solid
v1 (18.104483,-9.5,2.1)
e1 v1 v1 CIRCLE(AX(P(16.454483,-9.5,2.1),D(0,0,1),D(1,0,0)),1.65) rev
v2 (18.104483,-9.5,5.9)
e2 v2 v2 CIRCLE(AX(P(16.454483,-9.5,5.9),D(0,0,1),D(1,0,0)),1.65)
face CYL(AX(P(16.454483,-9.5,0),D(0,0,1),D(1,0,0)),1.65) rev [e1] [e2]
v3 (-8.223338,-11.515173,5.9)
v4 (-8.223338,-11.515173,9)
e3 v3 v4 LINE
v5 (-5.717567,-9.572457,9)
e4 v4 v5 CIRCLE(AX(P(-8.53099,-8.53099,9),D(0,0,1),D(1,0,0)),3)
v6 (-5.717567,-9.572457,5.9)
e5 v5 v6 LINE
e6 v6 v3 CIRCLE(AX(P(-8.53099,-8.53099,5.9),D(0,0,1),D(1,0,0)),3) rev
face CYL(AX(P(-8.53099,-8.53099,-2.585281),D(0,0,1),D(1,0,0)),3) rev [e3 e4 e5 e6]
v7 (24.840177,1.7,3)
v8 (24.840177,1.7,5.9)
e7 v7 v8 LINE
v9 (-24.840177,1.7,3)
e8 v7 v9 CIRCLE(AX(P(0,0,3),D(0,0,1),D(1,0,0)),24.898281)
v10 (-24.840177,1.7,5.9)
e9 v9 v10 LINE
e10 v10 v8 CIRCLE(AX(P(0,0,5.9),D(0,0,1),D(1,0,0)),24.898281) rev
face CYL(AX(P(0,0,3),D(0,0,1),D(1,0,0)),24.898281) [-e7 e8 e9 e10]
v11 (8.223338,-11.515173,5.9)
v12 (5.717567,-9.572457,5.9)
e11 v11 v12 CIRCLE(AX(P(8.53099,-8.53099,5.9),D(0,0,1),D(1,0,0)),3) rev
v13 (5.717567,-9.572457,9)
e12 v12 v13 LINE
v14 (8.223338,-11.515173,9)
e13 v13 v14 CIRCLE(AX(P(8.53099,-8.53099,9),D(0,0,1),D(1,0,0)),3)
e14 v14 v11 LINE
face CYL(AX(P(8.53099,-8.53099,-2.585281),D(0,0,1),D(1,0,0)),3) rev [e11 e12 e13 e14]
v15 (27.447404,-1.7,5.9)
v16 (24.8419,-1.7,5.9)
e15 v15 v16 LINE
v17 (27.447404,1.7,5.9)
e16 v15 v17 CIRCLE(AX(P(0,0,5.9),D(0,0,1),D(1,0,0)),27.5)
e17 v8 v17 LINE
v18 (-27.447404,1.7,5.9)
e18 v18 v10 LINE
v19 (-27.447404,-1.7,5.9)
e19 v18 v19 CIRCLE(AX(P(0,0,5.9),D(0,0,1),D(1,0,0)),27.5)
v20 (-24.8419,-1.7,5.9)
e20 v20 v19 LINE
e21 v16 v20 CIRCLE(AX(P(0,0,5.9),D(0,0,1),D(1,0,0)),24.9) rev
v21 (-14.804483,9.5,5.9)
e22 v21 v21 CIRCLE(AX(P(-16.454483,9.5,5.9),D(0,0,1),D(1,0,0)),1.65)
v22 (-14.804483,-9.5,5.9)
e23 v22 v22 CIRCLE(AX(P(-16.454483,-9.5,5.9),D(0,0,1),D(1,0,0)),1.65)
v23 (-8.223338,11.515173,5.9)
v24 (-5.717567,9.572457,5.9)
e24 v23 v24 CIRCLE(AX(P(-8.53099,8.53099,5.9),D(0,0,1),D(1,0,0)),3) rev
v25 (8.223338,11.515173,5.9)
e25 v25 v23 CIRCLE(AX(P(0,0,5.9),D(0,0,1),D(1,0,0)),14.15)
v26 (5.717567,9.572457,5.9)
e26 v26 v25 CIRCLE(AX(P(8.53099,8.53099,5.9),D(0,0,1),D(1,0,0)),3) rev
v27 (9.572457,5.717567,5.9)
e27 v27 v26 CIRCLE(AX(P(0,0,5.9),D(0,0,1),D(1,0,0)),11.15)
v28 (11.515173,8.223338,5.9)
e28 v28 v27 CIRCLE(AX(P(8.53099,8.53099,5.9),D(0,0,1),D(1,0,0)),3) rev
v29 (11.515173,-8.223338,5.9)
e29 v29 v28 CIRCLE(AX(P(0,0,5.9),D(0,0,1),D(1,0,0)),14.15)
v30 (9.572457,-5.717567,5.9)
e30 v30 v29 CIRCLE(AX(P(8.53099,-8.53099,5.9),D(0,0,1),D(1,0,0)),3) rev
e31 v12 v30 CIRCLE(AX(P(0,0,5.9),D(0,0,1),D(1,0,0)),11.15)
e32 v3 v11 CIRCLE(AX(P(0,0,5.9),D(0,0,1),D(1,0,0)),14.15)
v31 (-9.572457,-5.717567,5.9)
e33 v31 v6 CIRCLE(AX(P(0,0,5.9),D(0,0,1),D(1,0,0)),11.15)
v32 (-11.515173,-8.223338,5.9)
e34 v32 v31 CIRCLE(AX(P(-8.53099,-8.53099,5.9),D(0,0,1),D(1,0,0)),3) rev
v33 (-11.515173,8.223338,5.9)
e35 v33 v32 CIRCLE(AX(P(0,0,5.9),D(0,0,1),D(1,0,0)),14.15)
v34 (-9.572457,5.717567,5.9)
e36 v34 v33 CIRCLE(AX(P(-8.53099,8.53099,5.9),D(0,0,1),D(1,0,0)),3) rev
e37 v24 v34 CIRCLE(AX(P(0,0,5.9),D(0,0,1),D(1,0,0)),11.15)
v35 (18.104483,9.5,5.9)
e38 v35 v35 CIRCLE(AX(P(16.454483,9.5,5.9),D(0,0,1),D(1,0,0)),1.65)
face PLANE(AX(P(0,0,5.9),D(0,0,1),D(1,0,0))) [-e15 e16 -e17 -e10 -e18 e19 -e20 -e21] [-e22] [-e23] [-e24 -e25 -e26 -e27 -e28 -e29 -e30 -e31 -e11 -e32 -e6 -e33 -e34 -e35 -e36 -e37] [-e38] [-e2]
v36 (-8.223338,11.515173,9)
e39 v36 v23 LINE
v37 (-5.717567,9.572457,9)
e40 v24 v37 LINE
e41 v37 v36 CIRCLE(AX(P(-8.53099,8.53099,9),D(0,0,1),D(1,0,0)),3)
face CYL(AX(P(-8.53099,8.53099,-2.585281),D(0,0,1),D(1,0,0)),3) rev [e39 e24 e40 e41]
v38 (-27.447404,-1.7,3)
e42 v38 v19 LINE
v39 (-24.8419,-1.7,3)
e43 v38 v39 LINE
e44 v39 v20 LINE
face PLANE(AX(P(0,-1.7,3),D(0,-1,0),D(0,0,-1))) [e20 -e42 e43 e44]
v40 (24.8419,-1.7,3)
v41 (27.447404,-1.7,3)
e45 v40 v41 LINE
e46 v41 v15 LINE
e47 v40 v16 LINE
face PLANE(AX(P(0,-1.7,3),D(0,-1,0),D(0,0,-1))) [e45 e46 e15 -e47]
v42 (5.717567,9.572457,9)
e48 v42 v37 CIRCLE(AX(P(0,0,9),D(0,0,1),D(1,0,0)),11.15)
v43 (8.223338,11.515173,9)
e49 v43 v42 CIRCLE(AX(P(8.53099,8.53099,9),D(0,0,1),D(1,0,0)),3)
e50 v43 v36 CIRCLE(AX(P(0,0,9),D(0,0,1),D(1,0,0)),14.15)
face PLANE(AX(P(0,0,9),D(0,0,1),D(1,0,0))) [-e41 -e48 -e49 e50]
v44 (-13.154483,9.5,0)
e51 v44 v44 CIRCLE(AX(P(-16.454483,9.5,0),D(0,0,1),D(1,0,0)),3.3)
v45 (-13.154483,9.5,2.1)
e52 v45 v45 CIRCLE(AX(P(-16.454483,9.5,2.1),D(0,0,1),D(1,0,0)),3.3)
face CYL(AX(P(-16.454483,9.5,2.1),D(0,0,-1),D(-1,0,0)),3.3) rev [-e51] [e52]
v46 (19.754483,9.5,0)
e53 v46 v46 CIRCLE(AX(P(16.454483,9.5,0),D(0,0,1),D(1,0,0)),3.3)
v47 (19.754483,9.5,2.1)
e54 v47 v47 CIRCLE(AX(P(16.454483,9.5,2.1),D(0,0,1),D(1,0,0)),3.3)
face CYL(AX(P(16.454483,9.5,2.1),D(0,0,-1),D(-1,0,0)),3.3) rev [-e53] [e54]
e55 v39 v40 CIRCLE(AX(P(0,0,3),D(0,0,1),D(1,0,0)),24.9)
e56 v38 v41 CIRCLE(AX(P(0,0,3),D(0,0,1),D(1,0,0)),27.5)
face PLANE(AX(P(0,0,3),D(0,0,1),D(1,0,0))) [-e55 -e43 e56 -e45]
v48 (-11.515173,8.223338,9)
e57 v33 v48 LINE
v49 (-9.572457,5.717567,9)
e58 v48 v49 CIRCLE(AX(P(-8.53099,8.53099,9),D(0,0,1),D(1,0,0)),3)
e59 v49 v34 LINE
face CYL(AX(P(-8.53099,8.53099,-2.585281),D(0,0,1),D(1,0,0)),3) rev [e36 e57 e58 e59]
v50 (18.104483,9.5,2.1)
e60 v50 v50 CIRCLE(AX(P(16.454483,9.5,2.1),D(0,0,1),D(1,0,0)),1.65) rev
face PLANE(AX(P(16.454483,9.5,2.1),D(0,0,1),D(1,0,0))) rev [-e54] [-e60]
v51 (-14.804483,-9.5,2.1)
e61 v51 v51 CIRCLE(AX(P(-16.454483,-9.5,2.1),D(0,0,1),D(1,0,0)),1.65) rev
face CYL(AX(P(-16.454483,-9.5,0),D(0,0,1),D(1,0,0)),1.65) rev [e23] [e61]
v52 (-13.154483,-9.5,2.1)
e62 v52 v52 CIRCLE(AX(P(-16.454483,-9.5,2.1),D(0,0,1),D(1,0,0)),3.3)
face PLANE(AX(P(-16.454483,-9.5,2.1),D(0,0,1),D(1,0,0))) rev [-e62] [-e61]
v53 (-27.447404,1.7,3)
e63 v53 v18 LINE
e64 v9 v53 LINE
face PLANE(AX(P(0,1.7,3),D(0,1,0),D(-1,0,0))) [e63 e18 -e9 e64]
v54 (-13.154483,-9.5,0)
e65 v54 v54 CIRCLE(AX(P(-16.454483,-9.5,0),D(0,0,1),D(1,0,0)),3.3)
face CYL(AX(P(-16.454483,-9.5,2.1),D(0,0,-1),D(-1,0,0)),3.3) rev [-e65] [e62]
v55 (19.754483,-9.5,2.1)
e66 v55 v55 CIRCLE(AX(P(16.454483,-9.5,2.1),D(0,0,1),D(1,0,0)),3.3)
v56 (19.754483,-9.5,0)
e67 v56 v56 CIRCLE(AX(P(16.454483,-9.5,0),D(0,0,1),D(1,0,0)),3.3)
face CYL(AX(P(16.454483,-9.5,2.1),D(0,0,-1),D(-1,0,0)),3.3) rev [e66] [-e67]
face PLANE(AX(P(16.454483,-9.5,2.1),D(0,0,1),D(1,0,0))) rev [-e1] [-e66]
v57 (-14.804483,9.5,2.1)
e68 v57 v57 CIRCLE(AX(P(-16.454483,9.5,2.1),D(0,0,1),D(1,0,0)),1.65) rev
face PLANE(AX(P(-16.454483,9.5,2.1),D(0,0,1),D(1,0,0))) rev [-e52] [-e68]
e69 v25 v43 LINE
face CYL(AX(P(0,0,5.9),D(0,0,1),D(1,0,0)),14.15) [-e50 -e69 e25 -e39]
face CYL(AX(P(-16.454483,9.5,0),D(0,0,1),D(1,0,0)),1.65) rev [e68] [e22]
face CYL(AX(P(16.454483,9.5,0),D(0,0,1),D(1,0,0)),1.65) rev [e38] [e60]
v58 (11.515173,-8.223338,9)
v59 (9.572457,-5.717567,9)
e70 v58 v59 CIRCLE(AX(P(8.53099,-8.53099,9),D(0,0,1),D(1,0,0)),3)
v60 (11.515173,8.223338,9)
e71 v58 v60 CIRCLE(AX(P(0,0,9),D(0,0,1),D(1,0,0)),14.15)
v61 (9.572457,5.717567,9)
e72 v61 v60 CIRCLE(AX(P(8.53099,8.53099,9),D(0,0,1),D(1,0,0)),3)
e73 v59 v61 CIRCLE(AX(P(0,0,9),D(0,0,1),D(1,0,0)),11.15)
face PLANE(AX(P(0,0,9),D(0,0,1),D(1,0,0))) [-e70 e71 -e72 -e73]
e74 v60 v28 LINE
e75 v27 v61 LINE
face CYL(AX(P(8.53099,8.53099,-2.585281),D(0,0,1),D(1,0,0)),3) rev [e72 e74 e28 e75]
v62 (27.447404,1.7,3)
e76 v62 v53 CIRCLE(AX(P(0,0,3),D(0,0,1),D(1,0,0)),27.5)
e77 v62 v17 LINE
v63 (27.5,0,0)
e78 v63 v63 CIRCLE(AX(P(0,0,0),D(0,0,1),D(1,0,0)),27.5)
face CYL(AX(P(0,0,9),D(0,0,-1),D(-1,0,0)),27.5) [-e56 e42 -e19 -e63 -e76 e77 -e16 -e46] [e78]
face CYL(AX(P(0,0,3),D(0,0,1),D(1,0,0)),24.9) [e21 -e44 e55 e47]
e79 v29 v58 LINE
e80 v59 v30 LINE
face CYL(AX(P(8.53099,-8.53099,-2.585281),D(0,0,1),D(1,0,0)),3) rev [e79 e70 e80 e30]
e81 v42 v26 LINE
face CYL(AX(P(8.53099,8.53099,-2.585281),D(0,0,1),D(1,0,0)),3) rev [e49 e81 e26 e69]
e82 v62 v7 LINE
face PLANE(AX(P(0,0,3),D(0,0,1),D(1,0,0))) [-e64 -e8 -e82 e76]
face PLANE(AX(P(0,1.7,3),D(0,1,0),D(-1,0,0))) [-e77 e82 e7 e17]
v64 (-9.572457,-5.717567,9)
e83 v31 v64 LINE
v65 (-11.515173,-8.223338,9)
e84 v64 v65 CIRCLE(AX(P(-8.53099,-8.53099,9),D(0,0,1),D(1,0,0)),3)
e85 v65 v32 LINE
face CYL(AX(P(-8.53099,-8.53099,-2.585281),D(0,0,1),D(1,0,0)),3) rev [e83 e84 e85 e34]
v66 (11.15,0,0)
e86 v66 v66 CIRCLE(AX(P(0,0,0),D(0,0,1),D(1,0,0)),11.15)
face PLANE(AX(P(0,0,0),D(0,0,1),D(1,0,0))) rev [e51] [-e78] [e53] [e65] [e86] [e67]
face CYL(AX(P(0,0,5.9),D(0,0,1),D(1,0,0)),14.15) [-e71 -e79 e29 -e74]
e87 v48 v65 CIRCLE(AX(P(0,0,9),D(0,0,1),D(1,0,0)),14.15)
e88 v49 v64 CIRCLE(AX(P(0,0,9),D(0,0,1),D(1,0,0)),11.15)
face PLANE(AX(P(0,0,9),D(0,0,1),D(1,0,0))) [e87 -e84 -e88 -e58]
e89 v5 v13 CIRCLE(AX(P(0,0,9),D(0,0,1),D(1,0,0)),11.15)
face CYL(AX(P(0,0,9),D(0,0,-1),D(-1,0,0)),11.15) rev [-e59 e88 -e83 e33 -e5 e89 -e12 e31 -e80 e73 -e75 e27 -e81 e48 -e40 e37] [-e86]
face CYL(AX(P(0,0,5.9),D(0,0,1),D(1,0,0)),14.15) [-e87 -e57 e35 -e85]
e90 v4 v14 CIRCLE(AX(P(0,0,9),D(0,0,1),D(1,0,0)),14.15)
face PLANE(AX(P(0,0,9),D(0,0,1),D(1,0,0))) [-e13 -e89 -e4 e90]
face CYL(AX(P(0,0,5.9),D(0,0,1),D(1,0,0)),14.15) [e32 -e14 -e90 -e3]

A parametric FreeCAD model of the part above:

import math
import FreeCAD as App
import Part
import Sketcher

V = App.Vector

doc = App.newDocument("Part")
body = doc.addObject("PartDesign::Body", "Body")

# Sketch on XY plane
sketch1 = body.newObject("Sketcher::SketchObject", "Sketch")
sketch1.AttachmentSupport = (doc.getObject("XY_Plane"), [""])
sketch1.MapMode = "FlatFace"
sketch1.addGeometry([
    Part.Circle(V(0, 0, 0), V(0, 0, 1), 28),
    Part.Circle(V(0, 0, 0), V(0, 0, 1), 11),
], False)
sketch1.addConstraint([
    Sketcher.Constraint("Coincident", 0, 3, -1, 1),
    Sketcher.Constraint("Coincident", 1, 3, -1, 1),
    Sketcher.Constraint("Diameter", 0, 55.0),
    Sketcher.Constraint("Diameter", 1, 22.3),
])
pad1 = body.newObject("PartDesign::Pad", "Pad")
pad1.Profile = sketch1
pad1.Length = 9

# Sketch on XY plane
sketch2 = body.newObject("Sketcher::SketchObject", "Sketch001")
sketch2.AttachmentSupport = (doc.getObject("XY_Plane"), [""])
sketch2.MapMode = "FlatFace"
sketch2.AttachmentOffset = App.Placement(V(0, 0, 9), App.Rotation())
sketch2.addGeometry([
    Part.LineSegment(V(-27.4, 1.7, 0), V(-24.8, 1.7, 0)),  # 0
    Part.ArcOfCircle(Part.Circle(V(0, 0, 0), V(0, 0, 1), 24.9), math.radians(4), math.radians(176)),  # 1
    Part.LineSegment(V(24.8, 1.7, 0), V(27.4, 1.7, 0)),  # 2
    Part.ArcOfCircle(Part.Circle(V(0, 0, 0), V(0, 0, 1), 27.5), math.radians(4), math.radians(176)),  # 3
    Part.LineSegment(V(27.4, -1.7, 0), V(24.8, -1.7, 0)),  # 4
    Part.ArcOfCircle(Part.Circle(V(0, 0, 0), V(0, 0, 1), 24.9), math.radians(-176), math.radians(-4)),  # 5
    Part.LineSegment(V(-24.8, -1.7, 0), V(-27.4, -1.7, 0)),  # 6
    Part.ArcOfCircle(Part.Circle(V(0, 0, 0), V(0, 0, 1), 27.5), math.radians(-176), math.radians(-4)),  # 7
], False)
sketch2.addConstraint([
    Sketcher.Constraint("Coincident", 0, 2, 1, 2),
    Sketcher.Constraint("Coincident", 1, 1, 2, 1),
    Sketcher.Constraint("Coincident", 2, 2, 3, 1),
    Sketcher.Constraint("Coincident", 3, 2, 0, 1),
    Sketcher.Constraint("Coincident", 4, 2, 5, 2),
    Sketcher.Constraint("Coincident", 5, 1, 6, 1),
    Sketcher.Constraint("Coincident", 6, 2, 7, 1),
    Sketcher.Constraint("Coincident", 7, 2, 4, 1),
    Sketcher.Constraint("Horizontal", 0),
    Sketcher.Constraint("Horizontal", 2),
    Sketcher.Constraint("Horizontal", 4),
    Sketcher.Constraint("Horizontal", 6),
    Sketcher.Constraint("Coincident", 1, 3, -1, 1),
    Sketcher.Constraint("Coincident", 3, 3, -1, 1),
    Sketcher.Constraint("Coincident", 5, 3, -1, 1),
    Sketcher.Constraint("Coincident", 7, 3, -1, 1),
    Sketcher.Constraint("Equal", 3, 7),
    Sketcher.Constraint("Horizontal", 0, 2, 1, 1),
    Sketcher.Constraint("Horizontal", 4, 2, 5, 1),
    Sketcher.Constraint("Vertical", 3, 2, 6, 2),
    Sketcher.Constraint("Radius", 3, 27.5),
    Sketcher.Constraint("Radius", 5, 24.9),
    Sketcher.Constraint("DistanceY", -1, 1, 0, 2, 1.7),
    Sketcher.Constraint("Radius", 1, 24.898281),
])
pocket1 = body.newObject("PartDesign::Pocket", "Pocket")
pocket1.Profile = sketch2
pocket1.Length = 6

# Sketch on XY plane
sketch3 = body.newObject("Sketcher::SketchObject", "Sketch002")
sketch3.AttachmentSupport = (doc.getObject("XY_Plane"), [""])
sketch3.MapMode = "FlatFace"
sketch3.AttachmentOffset = App.Placement(V(0, 0, 9), App.Rotation())
sketch3.addGeometry([
    Part.Circle(V(0, 0, 0), V(0, 0, 1), 39),
    Part.Circle(V(0, 0, 0), V(0, 0, 1), 14),
], False)
sketch3.addConstraint([
    Sketcher.Constraint("Coincident", 0, 3, -1, 1),
    Sketcher.Constraint("Coincident", 1, 3, -1, 1),
    Sketcher.Constraint("Diameter", 1, 28.3),
    Sketcher.Constraint("Diameter", 0, 78.371796),
])
pocket2 = body.newObject("PartDesign::Pocket", "Pocket001")
pocket2.Profile = sketch3
pocket2.Length = 3.1

# Sketch on XY plane
sketch4 = body.newObject("Sketcher::SketchObject", "Sketch003")
sketch4.AttachmentSupport = (doc.getObject("XY_Plane"), [""])
sketch4.MapMode = "FlatFace"
sketch4.AttachmentOffset = App.Placement(V(0, 0, 5.9), App.Rotation())
sketch4.addGeometry([
    Part.Circle(V(-16.5, 9.5, 0), V(0, 0, 1), 1.6),
    Part.Circle(V(16.5, 9.5, 0), V(0, 0, 1), 1.6),
    Part.Circle(V(16.5, -9.5, 0), V(0, 0, 1), 1.6),
    Part.Circle(V(-16.5, -9.5, 0), V(0, 0, 1), 1.6),
], False)
sketch4.addConstraint([
    Sketcher.Constraint("Equal", 0, 1),
    Sketcher.Constraint("Equal", 1, 2),
    Sketcher.Constraint("Equal", 2, 3),
    Sketcher.Constraint("Symmetric", 0, 3, 2, 3, -1, 1),
    Sketcher.Constraint("Symmetric", 1, 3, 3, 3, -1, 1),
    Sketcher.Constraint("Symmetric", 0, 3, 1, 3, -2),
    Sketcher.Constraint("Diameter", 0, 3.3),
    Sketcher.Constraint("DistanceY", 2, 3, 1, 3, 19.0),
    Sketcher.Constraint("DistanceX", 0, 3, -1, 1, 16.454483),
])
pocket3 = body.newObject("PartDesign::Pocket", "Pocket002")
pocket3.Profile = sketch4
pocket3.Type = "ThroughAll"

# Sketch on XY plane
sketch5 = body.newObject("Sketcher::SketchObject", "Sketch004")
sketch5.AttachmentSupport = (doc.getObject("XY_Plane"), [""])
sketch5.MapMode = "FlatFace"
sketch5.AttachmentOffset = App.Placement(V(0, 0, 9), App.Rotation())
sketch5.addGeometry([
    Part.Circle(V(-8.5, 8.5, 0), V(0, 0, 1), 3),
    Part.Circle(V(8.5, 8.5, 0), V(0, 0, 1), 3),
    Part.Circle(V(8.5, -8.5, 0), V(0, 0, 1), 3),
    Part.Circle(V(-8.5, -8.5, 0), V(0, 0, 1), 3),
], False)
sketch5.addConstraint([
    Sketcher.Constraint("Equal", 0, 1),
    Sketcher.Constraint("Equal", 1, 2),
    Sketcher.Constraint("Equal", 2, 3),
    Sketcher.Constraint("Symmetric", 0, 3, 2, 3, -1, 1),
    Sketcher.Constraint("Symmetric", 1, 3, 3, 3, -1, 1),
    Sketcher.Constraint("Symmetric", 0, 3, 1, 3, -2),
    Sketcher.Constraint("Diameter", 0, 6.0),
    Sketcher.Constraint("DistanceX", 0, 3, -1, 1, 8.53099),
    Sketcher.Constraint("DistanceY", -1, 1, 0, 3, 8.53099),
])
pocket4 = body.newObject("PartDesign::Pocket", "Pocket003")
pocket4.Profile = sketch5
pocket4.Length = 3.1

# Sketch on XY plane
sketch6 = body.newObject("Sketcher::SketchObject", "Sketch005")
sketch6.AttachmentSupport = (doc.getObject("XY_Plane"), [""])
sketch6.MapMode = "FlatFace"
sketch6.addGeometry([
    Part.Circle(V(-16.5, 9.5, 0), V(0, 0, 1), 3.3),
    Part.Circle(V(-16.5, -9.5, 0), V(0, 0, 1), 3.3),
    Part.Circle(V(16.5, -9.5, 0), V(0, 0, 1), 3.3),
    Part.Circle(V(16.5, 9.5, 0), V(0, 0, 1), 3.3),
], False)
sketch6.addConstraint([
    Sketcher.Constraint("Equal", 0, 1),
    Sketcher.Constraint("Equal", 1, 2),
    Sketcher.Constraint("Equal", 2, 3),
    Sketcher.Constraint("Symmetric", 0, 3, 2, 3, -1, 1),
    Sketcher.Constraint("Symmetric", 1, 3, 3, 3, -1, 1),
    Sketcher.Constraint("Symmetric", 1, 3, 2, 3, -2),
    Sketcher.Constraint("Diameter", 0, 6.6),
    Sketcher.Constraint("DistanceY", 1, 3, 0, 3, 19.0),
    Sketcher.Constraint("DistanceX", 0, 3, -1, 1, 16.454483),
])
pocket5 = body.newObject("PartDesign::Pocket", "Pocket004")
pocket5.Profile = sketch6
pocket5.Length = 2.1
pocket5.Reversed = True

doc.recompute()
